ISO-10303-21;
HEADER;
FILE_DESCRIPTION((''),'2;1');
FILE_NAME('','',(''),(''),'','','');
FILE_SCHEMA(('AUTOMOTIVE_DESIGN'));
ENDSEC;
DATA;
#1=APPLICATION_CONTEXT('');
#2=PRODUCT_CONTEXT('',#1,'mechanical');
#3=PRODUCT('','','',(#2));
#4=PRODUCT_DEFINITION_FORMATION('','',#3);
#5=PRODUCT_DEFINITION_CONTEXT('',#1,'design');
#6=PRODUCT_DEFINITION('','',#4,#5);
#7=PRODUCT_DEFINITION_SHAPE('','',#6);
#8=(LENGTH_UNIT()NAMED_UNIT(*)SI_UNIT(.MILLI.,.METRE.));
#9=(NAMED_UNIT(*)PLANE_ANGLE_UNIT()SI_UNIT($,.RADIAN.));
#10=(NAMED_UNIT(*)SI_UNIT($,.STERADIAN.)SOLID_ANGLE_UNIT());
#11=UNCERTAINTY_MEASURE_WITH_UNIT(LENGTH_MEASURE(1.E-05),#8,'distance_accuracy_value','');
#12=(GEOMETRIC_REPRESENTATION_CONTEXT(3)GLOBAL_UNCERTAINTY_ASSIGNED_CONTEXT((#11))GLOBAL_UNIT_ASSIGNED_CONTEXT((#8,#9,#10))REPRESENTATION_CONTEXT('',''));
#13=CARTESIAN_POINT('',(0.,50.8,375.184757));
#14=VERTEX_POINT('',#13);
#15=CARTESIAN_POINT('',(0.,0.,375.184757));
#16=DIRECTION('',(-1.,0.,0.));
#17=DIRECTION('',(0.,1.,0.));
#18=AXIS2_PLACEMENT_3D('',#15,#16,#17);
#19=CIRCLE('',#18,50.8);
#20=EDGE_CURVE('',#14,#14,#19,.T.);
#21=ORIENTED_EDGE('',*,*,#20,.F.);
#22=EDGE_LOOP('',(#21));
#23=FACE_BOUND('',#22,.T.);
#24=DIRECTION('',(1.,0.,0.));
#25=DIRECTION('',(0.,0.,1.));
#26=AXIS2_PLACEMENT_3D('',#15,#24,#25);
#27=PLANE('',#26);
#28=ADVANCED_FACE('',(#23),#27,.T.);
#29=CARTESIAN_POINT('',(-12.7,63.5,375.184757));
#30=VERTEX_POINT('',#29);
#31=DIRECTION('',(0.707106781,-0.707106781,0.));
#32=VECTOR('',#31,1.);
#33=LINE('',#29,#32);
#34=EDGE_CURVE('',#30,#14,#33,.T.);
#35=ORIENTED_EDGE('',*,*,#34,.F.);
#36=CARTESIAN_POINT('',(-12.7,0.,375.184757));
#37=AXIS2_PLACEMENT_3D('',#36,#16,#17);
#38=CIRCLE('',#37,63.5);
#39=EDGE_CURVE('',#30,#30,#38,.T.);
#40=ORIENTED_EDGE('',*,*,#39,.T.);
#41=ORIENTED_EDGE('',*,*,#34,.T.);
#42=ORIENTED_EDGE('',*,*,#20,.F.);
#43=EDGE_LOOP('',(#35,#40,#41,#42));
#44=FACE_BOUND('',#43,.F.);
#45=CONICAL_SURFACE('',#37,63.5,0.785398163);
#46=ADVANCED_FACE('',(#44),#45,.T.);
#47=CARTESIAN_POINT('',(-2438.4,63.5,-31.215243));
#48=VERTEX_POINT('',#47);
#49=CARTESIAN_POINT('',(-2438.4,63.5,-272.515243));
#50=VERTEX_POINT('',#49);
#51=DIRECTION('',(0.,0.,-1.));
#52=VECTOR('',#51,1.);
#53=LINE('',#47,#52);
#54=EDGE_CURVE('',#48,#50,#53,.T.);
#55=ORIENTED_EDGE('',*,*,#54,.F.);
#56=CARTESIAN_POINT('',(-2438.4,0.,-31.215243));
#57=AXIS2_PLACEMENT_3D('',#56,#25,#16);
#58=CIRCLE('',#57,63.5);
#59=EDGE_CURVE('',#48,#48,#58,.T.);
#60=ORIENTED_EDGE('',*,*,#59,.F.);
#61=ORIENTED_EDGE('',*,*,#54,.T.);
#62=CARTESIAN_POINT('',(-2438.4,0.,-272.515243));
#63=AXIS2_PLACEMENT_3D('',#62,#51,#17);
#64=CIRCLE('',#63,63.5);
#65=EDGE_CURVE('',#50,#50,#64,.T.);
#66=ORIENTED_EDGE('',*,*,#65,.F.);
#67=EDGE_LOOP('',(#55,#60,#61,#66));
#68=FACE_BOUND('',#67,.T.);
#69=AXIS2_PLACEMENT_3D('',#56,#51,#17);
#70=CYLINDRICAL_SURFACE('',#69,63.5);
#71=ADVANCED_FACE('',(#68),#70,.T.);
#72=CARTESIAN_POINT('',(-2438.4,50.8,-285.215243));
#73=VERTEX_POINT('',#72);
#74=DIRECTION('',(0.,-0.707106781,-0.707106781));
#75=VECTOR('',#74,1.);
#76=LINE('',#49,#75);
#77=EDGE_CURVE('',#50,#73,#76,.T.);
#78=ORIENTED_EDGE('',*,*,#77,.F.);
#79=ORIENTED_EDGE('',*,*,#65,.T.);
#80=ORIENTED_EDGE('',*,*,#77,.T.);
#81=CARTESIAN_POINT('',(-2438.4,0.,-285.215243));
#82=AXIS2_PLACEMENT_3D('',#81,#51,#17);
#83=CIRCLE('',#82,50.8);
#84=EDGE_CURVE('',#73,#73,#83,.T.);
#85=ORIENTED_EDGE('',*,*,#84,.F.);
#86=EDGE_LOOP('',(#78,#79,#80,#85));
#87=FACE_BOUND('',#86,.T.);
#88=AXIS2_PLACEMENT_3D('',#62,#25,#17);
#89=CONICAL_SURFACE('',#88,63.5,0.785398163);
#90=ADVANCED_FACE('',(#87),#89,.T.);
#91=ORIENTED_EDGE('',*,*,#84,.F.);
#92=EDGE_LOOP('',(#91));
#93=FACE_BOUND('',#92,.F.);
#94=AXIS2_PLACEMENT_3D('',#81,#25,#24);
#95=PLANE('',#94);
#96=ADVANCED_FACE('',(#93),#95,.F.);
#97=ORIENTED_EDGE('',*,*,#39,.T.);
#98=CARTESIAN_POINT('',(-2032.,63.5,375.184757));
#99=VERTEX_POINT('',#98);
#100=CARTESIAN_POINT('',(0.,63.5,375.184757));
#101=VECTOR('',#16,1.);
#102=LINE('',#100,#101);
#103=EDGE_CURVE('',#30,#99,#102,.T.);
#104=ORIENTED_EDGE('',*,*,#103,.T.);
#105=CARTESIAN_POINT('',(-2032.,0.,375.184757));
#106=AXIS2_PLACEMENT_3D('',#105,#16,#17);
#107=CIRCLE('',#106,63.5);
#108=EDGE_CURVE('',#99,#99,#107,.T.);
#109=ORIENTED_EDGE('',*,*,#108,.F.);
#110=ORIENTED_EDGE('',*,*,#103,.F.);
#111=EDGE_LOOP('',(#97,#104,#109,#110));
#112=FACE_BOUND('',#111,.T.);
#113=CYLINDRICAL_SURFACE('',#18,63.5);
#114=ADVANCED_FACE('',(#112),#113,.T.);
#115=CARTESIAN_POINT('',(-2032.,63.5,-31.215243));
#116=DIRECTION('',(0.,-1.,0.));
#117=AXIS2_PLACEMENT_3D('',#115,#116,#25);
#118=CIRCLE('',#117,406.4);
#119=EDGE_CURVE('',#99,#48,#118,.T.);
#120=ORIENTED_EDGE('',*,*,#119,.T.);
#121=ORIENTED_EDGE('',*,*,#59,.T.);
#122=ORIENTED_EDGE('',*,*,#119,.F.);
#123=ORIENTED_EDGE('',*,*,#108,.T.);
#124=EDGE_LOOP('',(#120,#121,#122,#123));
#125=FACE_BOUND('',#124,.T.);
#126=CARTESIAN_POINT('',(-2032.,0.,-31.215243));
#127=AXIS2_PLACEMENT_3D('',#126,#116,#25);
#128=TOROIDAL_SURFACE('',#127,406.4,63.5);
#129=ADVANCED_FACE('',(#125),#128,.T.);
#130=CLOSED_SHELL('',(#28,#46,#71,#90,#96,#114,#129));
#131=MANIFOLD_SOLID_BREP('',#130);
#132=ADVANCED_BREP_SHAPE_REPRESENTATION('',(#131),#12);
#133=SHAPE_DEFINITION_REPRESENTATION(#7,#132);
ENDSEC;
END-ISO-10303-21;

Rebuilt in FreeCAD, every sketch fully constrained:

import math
import FreeCAD as App
import Part
import Sketcher
from FreeCAD import Vector
Q = App.Units.Quantity


def edges_at(feature, points):
    """Names of the edges that pass closest to the given points."""
    edges = feature.Shape.Edges
    near = lambda p: min(range(len(edges)), key=lambda i: edges[i].distToShape(Part.Vertex(*p))[0])
    return sorted({f"Edge{near(p) + 1}" for p in points})

doc = App.newDocument("Part")
body = doc.addObject("PartDesign::Body", "Body")

# Sketch on YZ plane
sketch1 = body.newObject("Sketcher::SketchObject", "Sketch")
sketch1.AttachmentSupport = (doc.getObject("YZ_Plane"), [""])
sketch1.MapMode = "FlatFace"
sketch1.addGeometry(Part.Circle(Vector(0, 375, 0), Vector(0, 0, 1), 64), False)
sketch1.addConstraint(Sketcher.Constraint("PointOnObject", 0, 3, -2))
sketch1.addConstraint(Sketcher.Constraint("Diameter", 0, Q("5 in")))
sketch1.addConstraint(Sketcher.Constraint("DistanceY", -1, 1, 0, 3, 375.184757))

# Sketch on XZ plane
sketch2 = body.newObject("Sketcher::SketchObject", "Sketch001")
sketch2.AttachmentSupport = (doc.getObject("XZ_Plane"), [""])
sketch2.MapMode = "FlatFace"
sketch2.addGeometry(Part.LineSegment(Vector(0, 375, 0), Vector(-2032, 375, 0)), False)
sketch2.addGeometry(Part.ArcOfCircle(Part.Circle(Vector(-2032, -31, 0), Vector(0, 0, 1), 406), math.radians(90), math.radians(180)), False)
sketch2.addGeometry(Part.LineSegment(Vector(-2438, -31, 0), Vector(-2438, -285, 0)), False)
sketch2.addConstraint(Sketcher.Constraint("Tangent", 0, 2, 1, 1))
sketch2.addConstraint(Sketcher.Constraint("Tangent", 1, 2, 2, 1))
sketch2.addConstraint(Sketcher.Constraint("Horizontal", 0))
sketch2.addConstraint(Sketcher.Constraint("Vertical", 2))
sketch2.addConstraint(Sketcher.Constraint("PointOnObject", 0, 1, -2))
sketch2.addConstraint(Sketcher.Constraint("Radius", 1, Q("16 in")))
sketch2.addConstraint(Sketcher.Constraint("DistanceX", 0, 2, 0, 1, Q("80 in")))
sketch2.addConstraint(Sketcher.Constraint("DistanceY", 2, 2, 2, 1, Q("10 in")))
sketch2.addConstraint(Sketcher.Constraint("DistanceY", 1, 3, -1, 1, 31.215243))
doc.recompute()

additivepipe = body.newObject("PartDesign::AdditivePipe", "AdditivePipe")
additivepipe.Profile = sketch1
additivepipe.Spine = (sketch2, ["Edge1", "Edge2", "Edge3"])
doc.recompute()

chamfer = body.newObject("PartDesign::Chamfer", "Chamfer")
chamfer.Base = (additivepipe, edges_at(additivepipe, [(0, -63.5, 375.185), (-2438.4, -63.5, -285.215)]))
chamfer.ChamferType = "Two distances"
chamfer.Size = Q("0.5 in")
chamfer.Size2 = Q("0.5 in")

doc.recompute()
